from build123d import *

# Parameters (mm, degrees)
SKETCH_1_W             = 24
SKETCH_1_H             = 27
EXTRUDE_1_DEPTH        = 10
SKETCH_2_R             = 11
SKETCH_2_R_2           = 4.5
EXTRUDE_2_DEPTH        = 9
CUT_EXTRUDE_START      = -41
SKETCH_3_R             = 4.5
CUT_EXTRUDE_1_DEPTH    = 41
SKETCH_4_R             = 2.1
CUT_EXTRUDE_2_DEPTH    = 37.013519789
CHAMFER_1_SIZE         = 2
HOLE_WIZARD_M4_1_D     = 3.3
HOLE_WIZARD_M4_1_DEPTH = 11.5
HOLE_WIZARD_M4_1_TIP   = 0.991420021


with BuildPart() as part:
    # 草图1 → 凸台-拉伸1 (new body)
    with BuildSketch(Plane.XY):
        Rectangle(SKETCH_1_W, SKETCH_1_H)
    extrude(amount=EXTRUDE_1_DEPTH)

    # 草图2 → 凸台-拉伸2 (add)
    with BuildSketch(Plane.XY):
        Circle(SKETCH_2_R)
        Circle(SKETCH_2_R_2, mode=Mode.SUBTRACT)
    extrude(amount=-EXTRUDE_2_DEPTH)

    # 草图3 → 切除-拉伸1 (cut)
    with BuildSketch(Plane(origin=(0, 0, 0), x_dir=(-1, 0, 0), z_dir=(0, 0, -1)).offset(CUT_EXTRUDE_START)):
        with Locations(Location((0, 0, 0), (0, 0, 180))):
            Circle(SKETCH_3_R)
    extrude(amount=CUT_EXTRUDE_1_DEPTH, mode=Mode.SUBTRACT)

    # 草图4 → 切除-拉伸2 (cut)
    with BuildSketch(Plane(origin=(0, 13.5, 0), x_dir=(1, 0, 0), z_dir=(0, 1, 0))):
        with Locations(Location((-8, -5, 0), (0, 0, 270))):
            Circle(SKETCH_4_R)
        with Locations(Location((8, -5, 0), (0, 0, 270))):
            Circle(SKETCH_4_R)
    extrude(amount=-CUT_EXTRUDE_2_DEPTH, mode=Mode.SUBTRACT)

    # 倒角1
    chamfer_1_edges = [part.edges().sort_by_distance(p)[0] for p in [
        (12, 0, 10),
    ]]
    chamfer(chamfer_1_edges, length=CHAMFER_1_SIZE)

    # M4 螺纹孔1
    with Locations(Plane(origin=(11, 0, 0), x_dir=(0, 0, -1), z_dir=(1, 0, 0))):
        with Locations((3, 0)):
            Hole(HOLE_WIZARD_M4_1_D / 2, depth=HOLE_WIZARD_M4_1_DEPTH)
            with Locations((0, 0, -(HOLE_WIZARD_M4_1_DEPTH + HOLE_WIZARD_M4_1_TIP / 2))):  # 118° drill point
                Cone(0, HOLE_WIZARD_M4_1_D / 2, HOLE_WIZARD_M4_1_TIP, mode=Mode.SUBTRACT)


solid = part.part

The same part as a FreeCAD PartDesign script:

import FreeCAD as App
import Part
import Sketcher

V = App.Vector


def edges_at(feature, points):
    """Names of the edges that pass closest to the given points."""
    edges = feature.Shape.Edges
    near = lambda p: min(range(len(edges)), key=lambda i: edges[i].distToShape(Part.Vertex(*p))[0])
    return sorted({f"Edge{near(p) + 1}" for p in points})


def add_polygon(sketch, points):
    """Adds a closed chain of lines whose ends are joined by coincident constraints."""
    first, n = sketch.GeometryCount, len(points)
    for a, b in zip(points, points[1:] + points[:1]):
        sketch.addGeometry(Part.LineSegment(App.Vector(*a, 0), App.Vector(*b, 0)), False)
    for i in range(n):
        sketch.addConstraint(Sketcher.Constraint("Coincident", first + i, 2, first + (i + 1) % n, 1))

doc = App.newDocument("Part")
body = doc.addObject("PartDesign::Body", "Body")

sketch1 = body.newObject("Sketcher::SketchObject", "Sketch")
sketch1.AttachmentSupport = (doc.getObject("XY_Plane"), [""])
sketch1.MapMode = "FlatFace"
add_polygon(sketch1, [(-12, 14), (-12, -14), (12, -14), (12, 14)])
sketch1.addConstraint([
    Sketcher.Constraint("Vertical", 0),
    Sketcher.Constraint("Horizontal", 1),
    Sketcher.Constraint("Vertical", 2),
    Sketcher.Constraint("Horizontal", 3),
    Sketcher.Constraint("Symmetric", 0, 2, 2, 2, -1, 1),
    Sketcher.Constraint("DistanceX", 1, 1, 1, 2, 24.0),
    Sketcher.Constraint("DistanceY", 0, 2, 0, 1, 27.0),
])
pad1 = body.newObject("PartDesign::Pad", "Pad")
pad1.Profile = sketch1
pad1.Length = 10

sketch2 = body.newObject("Sketcher::SketchObject", "Sketch001")
sketch2.AttachmentSupport = (doc.getObject("XY_Plane"), [""])
sketch2.MapMode = "FlatFace"
sketch2.addGeometry([
    Part.Circle(V(0, 0, 0), V(0, 0, 1), 11),
    Part.Circle(V(0, 0, 0), V(0, 0, 1), 4.5),
], False)
sketch2.addConstraint([
    Sketcher.Constraint("Coincident", 0, 3, -1, 1),
    Sketcher.Constraint("Coincident", 1, 3, -1, 1),
    Sketcher.Constraint("Diameter", 0, 22.0),
    Sketcher.Constraint("Diameter", 1, 9.0),
])
pad2 = body.newObject("PartDesign::Pad", "Pad001")
pad2.Profile = sketch2
pad2.Length = 9
pad2.Reversed = True

sketch3 = body.newObject("Sketcher::SketchObject", "Sketch002")
sketch3.AttachmentSupport = (doc.getObject("XY_Plane"), [""])
sketch3.MapMode = "FlatFace"
sketch3.AttachmentOffset = App.Placement(V(0, 0, 41), App.Rotation())
sketch3.addGeometry(Part.Circle(V(0, 0, 0), V(0, 0, 1), 4.5), False)
sketch3.addConstraint([
    Sketcher.Constraint("Coincident", 0, 3, -1, 1),
    Sketcher.Constraint("Diameter", 0, 9.0),
])
pocket1 = body.newObject("PartDesign::Pocket", "Pocket")
pocket1.Profile = sketch3
pocket1.Length = 41

sketch4 = body.newObject("Sketcher::SketchObject", "Sketch003")
sketch4.AttachmentSupport = (doc.getObject("XZ_Plane"), [""])
sketch4.MapMode = "FlatFace"
sketch4.AttachmentOffset = App.Placement(V(0, 0, -13.5), App.Rotation())
sketch4.addGeometry([
    Part.Circle(V(-8, 5, 0), V(0, 0, 1), 2.1),
    Part.Circle(V(8, 5, 0), V(0, 0, 1), 2.1),
], False)
sketch4.addConstraint([
    Sketcher.Constraint("Equal", 0, 1),
    Sketcher.Constraint("Symmetric", 0, 3, 1, 3, -2),
    Sketcher.Constraint("Diameter", 0, 4.2),
    Sketcher.Constraint("DistanceX", 0, 3, -1, 1, 8.0),
    Sketcher.Constraint("DistanceY", -1, 1, 0, 3, 5.0),
])
pocket2 = body.newObject("PartDesign::Pocket", "Pocket001")
pocket2.Profile = sketch4
pocket2.Length = 37.01352
pocket2.Reversed = True
doc.recompute()

chamfer = body.newObject("PartDesign::Chamfer", "Chamfer")
chamfer.Base = (pocket2, edges_at(pocket2, [(12, 0, 10)]))
chamfer.Size = 2

sketch5 = body.newObject("Sketcher::SketchObject", "Sketch004")
sketch5.AttachmentSupport = (doc.getObject("YZ_Plane"), [""])
sketch5.MapMode = "FlatFace"
sketch5.AttachmentOffset = App.Placement(V(0, 0, 11), App.Rotation())
sketch5.addGeometry(Part.Circle(V(0, -3, 0), V(0, 0, 1), 1.6), False)
sketch5.addConstraint([
    Sketcher.Constraint("PointOnObject", 0, 3, -2),
    Sketcher.Constraint("Diameter", 0, 3.3),
    Sketcher.Constraint("DistanceY", 0, 3, -1, 1, 3.0),
])
doc.recompute()
hole = body.newObject("PartDesign::Hole", "Hole")
hole.Profile = sketch5
hole.ThreadType = "None"
hole.Diameter = 3.3
hole.DepthType = "Dimension"
hole.Depth = 11.5
hole.DrillPoint = "Angled"
hole.DrillPointAngle = 118

doc.recompute()
